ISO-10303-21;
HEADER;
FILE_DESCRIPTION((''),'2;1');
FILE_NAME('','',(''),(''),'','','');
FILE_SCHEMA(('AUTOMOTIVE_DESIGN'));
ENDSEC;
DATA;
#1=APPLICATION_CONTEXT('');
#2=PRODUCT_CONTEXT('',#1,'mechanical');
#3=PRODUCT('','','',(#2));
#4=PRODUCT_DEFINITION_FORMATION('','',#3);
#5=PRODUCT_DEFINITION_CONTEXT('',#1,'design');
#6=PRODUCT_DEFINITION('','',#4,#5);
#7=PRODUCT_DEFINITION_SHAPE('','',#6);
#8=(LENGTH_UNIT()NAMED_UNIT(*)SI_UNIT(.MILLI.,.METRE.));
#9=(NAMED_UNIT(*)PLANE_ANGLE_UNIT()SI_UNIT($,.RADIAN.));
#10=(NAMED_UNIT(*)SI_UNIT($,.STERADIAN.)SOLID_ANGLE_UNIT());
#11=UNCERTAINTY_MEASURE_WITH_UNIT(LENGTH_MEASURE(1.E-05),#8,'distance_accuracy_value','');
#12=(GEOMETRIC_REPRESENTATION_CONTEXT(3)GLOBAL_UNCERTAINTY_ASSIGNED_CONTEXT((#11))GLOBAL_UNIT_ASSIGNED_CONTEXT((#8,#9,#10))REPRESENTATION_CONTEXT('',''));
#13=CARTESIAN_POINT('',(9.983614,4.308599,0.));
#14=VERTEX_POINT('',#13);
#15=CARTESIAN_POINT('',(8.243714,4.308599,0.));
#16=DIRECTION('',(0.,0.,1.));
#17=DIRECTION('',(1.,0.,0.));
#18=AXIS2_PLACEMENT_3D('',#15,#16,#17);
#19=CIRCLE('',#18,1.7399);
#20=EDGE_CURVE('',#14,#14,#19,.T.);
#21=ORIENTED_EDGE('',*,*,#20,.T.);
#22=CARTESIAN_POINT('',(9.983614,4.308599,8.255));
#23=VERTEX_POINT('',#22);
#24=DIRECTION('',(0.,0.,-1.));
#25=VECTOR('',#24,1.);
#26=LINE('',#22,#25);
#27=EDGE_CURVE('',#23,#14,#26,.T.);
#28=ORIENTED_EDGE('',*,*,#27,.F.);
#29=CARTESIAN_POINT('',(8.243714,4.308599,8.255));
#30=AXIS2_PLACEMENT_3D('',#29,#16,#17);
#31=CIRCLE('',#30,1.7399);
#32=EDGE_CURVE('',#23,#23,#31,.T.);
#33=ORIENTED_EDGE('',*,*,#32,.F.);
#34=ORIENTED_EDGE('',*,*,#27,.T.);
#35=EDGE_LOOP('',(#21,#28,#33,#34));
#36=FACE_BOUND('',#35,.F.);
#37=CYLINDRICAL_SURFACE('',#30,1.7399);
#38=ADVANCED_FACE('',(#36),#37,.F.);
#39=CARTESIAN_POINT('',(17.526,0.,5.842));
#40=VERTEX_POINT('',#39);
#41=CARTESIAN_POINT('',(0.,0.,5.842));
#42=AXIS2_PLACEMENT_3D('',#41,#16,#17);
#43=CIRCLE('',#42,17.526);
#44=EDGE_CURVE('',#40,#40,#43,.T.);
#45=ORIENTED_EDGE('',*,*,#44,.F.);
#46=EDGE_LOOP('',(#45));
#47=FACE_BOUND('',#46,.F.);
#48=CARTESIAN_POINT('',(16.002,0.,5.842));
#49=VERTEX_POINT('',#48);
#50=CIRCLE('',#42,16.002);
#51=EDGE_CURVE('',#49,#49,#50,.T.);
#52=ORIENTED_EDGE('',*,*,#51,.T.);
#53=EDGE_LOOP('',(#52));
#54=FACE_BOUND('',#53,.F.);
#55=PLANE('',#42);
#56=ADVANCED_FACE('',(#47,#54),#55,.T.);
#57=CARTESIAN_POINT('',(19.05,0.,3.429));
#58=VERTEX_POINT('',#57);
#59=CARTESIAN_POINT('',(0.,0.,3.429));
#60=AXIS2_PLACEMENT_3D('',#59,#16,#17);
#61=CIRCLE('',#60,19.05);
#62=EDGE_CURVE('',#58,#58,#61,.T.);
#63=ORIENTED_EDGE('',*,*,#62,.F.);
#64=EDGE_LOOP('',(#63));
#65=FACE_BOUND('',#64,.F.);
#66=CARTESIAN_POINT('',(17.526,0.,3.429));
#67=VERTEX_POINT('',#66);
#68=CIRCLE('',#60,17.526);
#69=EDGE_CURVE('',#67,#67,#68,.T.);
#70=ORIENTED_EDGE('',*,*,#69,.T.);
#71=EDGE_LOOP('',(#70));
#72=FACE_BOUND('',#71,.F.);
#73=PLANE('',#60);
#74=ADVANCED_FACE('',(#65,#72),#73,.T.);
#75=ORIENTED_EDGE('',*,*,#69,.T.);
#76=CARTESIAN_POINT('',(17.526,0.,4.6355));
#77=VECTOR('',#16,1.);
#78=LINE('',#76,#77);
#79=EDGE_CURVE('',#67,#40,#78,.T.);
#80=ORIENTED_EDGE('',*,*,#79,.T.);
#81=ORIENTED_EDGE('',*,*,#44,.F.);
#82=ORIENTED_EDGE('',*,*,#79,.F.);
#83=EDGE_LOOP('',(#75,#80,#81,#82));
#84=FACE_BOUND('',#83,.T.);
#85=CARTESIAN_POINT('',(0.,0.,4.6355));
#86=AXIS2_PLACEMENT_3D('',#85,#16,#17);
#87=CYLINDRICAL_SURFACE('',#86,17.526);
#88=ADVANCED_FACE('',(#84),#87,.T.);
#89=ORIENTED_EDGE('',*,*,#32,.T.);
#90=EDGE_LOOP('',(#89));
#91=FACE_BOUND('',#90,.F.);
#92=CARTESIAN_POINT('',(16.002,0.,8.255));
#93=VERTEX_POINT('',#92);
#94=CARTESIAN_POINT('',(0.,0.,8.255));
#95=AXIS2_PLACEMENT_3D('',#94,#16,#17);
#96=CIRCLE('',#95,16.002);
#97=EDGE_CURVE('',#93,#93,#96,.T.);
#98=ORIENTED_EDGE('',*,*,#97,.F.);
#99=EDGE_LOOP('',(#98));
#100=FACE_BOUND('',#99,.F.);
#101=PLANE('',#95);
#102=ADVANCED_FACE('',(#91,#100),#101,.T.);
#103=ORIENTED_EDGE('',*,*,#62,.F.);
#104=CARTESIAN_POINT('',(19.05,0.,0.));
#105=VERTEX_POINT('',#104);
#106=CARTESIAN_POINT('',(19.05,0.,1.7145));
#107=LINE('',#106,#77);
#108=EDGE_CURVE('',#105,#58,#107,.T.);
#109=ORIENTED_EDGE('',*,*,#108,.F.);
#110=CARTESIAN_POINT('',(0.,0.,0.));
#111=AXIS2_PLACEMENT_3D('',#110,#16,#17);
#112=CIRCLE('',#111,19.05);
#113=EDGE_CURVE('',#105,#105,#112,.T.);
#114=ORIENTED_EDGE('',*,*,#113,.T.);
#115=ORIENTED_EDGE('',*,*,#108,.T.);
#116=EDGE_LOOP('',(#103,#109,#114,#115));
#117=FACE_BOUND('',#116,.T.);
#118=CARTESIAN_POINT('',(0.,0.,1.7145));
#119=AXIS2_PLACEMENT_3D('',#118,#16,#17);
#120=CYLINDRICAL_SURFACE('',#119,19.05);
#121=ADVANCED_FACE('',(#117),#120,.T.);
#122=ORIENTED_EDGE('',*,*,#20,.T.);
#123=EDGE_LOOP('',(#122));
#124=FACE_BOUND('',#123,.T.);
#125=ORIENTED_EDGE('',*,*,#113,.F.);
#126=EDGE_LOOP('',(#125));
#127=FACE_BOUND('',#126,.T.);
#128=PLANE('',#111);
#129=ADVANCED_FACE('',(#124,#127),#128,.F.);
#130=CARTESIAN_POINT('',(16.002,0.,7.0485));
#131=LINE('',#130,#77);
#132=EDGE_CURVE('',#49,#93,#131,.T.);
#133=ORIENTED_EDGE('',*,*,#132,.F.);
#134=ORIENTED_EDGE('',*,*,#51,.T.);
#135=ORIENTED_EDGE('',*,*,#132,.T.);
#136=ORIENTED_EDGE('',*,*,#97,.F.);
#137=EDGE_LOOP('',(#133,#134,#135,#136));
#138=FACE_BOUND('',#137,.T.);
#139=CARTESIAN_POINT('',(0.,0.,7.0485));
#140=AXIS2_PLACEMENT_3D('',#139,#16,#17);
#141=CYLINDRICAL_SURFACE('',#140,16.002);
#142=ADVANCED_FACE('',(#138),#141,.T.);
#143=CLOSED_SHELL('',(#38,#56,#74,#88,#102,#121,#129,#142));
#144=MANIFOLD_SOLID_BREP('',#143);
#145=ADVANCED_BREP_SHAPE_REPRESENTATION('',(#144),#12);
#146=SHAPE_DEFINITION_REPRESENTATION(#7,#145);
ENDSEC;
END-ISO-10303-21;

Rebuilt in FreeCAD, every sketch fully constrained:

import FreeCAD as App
import Part
import Sketcher
Q = App.Units.Quantity

doc = App.newDocument("Part")
body = doc.addObject("PartDesign::Body", "Body")

# Sketch on XZ plane
sketch1 = doc.addObject("Sketcher::SketchObject", "Sketch")
body.addObject(sketch1)
sketch1.AttachmentSupport = (doc.XZ_Plane, [""])
sketch1.MapMode = "FlatFace"
sketch1.addGeometry(Part.LineSegment(App.Vector(0, 3.4, 0), App.Vector(0, 0, 0)), False)
sketch1.addGeometry(Part.LineSegment(App.Vector(0, 0, 0), App.Vector(19.1, 0, 0)), False)
sketch1.addGeometry(Part.LineSegment(App.Vector(19.1, 0, 0), App.Vector(19.1, 3.4, 0)), False)
sketch1.addGeometry(Part.LineSegment(App.Vector(19.1, 3.4, 0), App.Vector(0, 3.4, 0)), False)
sketch1.addConstraint(Sketcher.Constraint("Coincident", 0, 2, 1, 1))
sketch1.addConstraint(Sketcher.Constraint("Coincident", 1, 2, 2, 1))
sketch1.addConstraint(Sketcher.Constraint("Coincident", 2, 2, 3, 1))
sketch1.addConstraint(Sketcher.Constraint("Coincident", 3, 2, 0, 1))
sketch1.addConstraint(Sketcher.Constraint("Vertical", 0))
sketch1.addConstraint(Sketcher.Constraint("Horizontal", 1))
sketch1.addConstraint(Sketcher.Constraint("Vertical", 2))
sketch1.addConstraint(Sketcher.Constraint("Horizontal", 3))
sketch1.addConstraint(Sketcher.Constraint("Coincident", 0, 2, -1, 1))
sketch1.addConstraint(Sketcher.Constraint("DistanceX", 1, 1, 1, 2, Q("0.75 in")))
sketch1.addConstraint(Sketcher.Constraint("DistanceY", 0, 2, 0, 1, Q("0.135 in")))
revolution = doc.addObject("PartDesign::Revolution", "Revolution")
body.addObject(revolution)
revolution.Profile = sketch1
revolution.ReferenceAxis = (sketch1, ["V_Axis"])
revolution.Angle = 360

# Sketch on XZ plane
sketch2 = doc.addObject("Sketcher::SketchObject", "Sketch001")
body.addObject(sketch2)
sketch2.AttachmentSupport = (doc.XZ_Plane, [""])
sketch2.MapMode = "FlatFace"
sketch2.addGeometry(Part.LineSegment(App.Vector(0, 5.8, 0), App.Vector(0, 3.4, 0)), False)
sketch2.addGeometry(Part.LineSegment(App.Vector(0, 3.4, 0), App.Vector(17.5, 3.4, 0)), False)
sketch2.addGeometry(Part.LineSegment(App.Vector(17.5, 3.4, 0), App.Vector(17.5, 5.8, 0)), False)
sketch2.addGeometry(Part.LineSegment(App.Vector(17.5, 5.8, 0), App.Vector(0, 5.8, 0)), False)
sketch2.addConstraint(Sketcher.Constraint("Coincident", 0, 2, 1, 1))
sketch2.addConstraint(Sketcher.Constraint("Coincident", 1, 2, 2, 1))
sketch2.addConstraint(Sketcher.Constraint("Coincident", 2, 2, 3, 1))
sketch2.addConstraint(Sketcher.Constraint("Coincident", 3, 2, 0, 1))
sketch2.addConstraint(Sketcher.Constraint("Vertical", 0))
sketch2.addConstraint(Sketcher.Constraint("Horizontal", 1))
sketch2.addConstraint(Sketcher.Constraint("Vertical", 2))
sketch2.addConstraint(Sketcher.Constraint("Horizontal", 3))
sketch2.addConstraint(Sketcher.Constraint("PointOnObject", 0, 2, -2))
sketch2.addConstraint(Sketcher.Constraint("DistanceX", 1, 1, 1, 2, Q("0.69 in")))
sketch2.addConstraint(Sketcher.Constraint("DistanceY", 0, 2, 0, 1, Q("0.095 in")))
sketch2.addConstraint(Sketcher.Constraint("DistanceY", -1, 1, 2, 2, Q("0.23 in")))
revolution2 = doc.addObject("PartDesign::Revolution", "Revolution001")
body.addObject(revolution2)
revolution2.Profile = sketch2
revolution2.ReferenceAxis = (sketch2, ["V_Axis"])
revolution2.Angle = 360

# Sketch on XZ plane
sketch3 = doc.addObject("Sketcher::SketchObject", "Sketch002")
body.addObject(sketch3)
sketch3.AttachmentSupport = (doc.XZ_Plane, [""])
sketch3.MapMode = "FlatFace"
sketch3.addGeometry(Part.LineSegment(App.Vector(0, 8.3, 0), App.Vector(0, 5.8, 0)), False)
sketch3.addGeometry(Part.LineSegment(App.Vector(0, 5.8, 0), App.Vector(16, 5.8, 0)), False)
sketch3.addGeometry(Part.LineSegment(App.Vector(16, 5.8, 0), App.Vector(16, 8.3, 0)), False)
sketch3.addGeometry(Part.LineSegment(App.Vector(16, 8.3, 0), App.Vector(0, 8.3, 0)), False)
sketch3.addConstraint(Sketcher.Constraint("Coincident", 0, 2, 1, 1))
sketch3.addConstraint(Sketcher.Constraint("Coincident", 1, 2, 2, 1))
sketch3.addConstraint(Sketcher.Constraint("Coincident", 2, 2, 3, 1))
sketch3.addConstraint(Sketcher.Constraint("Coincident", 3, 2, 0, 1))
sketch3.addConstraint(Sketcher.Constraint("Vertical", 0))
sketch3.addConstraint(Sketcher.Constraint("Horizontal", 1))
sketch3.addConstraint(Sketcher.Constraint("Vertical", 2))
sketch3.addConstraint(Sketcher.Constraint("Horizontal", 3))
sketch3.addConstraint(Sketcher.Constraint("PointOnObject", 0, 2, -2))
sketch3.addConstraint(Sketcher.Constraint("DistanceX", 1, 1, 1, 2, Q("0.63 in")))
sketch3.addConstraint(Sketcher.Constraint("DistanceY", 0, 2, 0, 1, Q("0.095 in")))
sketch3.addConstraint(Sketcher.Constraint("DistanceY", -1, 1, 0, 2, Q("0.23 in")))
revolution3 = doc.addObject("PartDesign::Revolution", "Revolution002")
body.addObject(revolution3)
revolution3.Profile = sketch3
revolution3.ReferenceAxis = (sketch3, ["V_Axis"])
revolution3.Angle = 360

# Sketch on XY plane
sketch4 = doc.addObject("Sketcher::SketchObject", "Sketch003")
body.addObject(sketch4)
sketch4.AttachmentSupport = (doc.XY_Plane, [""])
sketch4.MapMode = "FlatFace"
sketch4.AttachmentOffset = App.Placement(App.Vector(0, 0, 0.325 * 25.4), App.Rotation())
sketch4.addGeometry(Part.Circle(App.Vector(8.2, 4.3, 0), App.Vector(0, 0, 1), 1.7), False)
sketch4.addConstraint(Sketcher.Constraint("Diameter", 0, Q("0.137 in")))
sketch4.addConstraint(Sketcher.Constraint("DistanceY", -1, 1, 0, 3, Q("4.308599 mm")))
sketch4.addConstraint(Sketcher.Constraint("DistanceX", -1, 1, 0, 3, Q("8.243714 mm")))
pocket1 = doc.addObject("PartDesign::Pocket", "Pocket")
body.addObject(pocket1)
pocket1.Profile = sketch4
pocket1.Type = "ThroughAll"

doc.recompute()
